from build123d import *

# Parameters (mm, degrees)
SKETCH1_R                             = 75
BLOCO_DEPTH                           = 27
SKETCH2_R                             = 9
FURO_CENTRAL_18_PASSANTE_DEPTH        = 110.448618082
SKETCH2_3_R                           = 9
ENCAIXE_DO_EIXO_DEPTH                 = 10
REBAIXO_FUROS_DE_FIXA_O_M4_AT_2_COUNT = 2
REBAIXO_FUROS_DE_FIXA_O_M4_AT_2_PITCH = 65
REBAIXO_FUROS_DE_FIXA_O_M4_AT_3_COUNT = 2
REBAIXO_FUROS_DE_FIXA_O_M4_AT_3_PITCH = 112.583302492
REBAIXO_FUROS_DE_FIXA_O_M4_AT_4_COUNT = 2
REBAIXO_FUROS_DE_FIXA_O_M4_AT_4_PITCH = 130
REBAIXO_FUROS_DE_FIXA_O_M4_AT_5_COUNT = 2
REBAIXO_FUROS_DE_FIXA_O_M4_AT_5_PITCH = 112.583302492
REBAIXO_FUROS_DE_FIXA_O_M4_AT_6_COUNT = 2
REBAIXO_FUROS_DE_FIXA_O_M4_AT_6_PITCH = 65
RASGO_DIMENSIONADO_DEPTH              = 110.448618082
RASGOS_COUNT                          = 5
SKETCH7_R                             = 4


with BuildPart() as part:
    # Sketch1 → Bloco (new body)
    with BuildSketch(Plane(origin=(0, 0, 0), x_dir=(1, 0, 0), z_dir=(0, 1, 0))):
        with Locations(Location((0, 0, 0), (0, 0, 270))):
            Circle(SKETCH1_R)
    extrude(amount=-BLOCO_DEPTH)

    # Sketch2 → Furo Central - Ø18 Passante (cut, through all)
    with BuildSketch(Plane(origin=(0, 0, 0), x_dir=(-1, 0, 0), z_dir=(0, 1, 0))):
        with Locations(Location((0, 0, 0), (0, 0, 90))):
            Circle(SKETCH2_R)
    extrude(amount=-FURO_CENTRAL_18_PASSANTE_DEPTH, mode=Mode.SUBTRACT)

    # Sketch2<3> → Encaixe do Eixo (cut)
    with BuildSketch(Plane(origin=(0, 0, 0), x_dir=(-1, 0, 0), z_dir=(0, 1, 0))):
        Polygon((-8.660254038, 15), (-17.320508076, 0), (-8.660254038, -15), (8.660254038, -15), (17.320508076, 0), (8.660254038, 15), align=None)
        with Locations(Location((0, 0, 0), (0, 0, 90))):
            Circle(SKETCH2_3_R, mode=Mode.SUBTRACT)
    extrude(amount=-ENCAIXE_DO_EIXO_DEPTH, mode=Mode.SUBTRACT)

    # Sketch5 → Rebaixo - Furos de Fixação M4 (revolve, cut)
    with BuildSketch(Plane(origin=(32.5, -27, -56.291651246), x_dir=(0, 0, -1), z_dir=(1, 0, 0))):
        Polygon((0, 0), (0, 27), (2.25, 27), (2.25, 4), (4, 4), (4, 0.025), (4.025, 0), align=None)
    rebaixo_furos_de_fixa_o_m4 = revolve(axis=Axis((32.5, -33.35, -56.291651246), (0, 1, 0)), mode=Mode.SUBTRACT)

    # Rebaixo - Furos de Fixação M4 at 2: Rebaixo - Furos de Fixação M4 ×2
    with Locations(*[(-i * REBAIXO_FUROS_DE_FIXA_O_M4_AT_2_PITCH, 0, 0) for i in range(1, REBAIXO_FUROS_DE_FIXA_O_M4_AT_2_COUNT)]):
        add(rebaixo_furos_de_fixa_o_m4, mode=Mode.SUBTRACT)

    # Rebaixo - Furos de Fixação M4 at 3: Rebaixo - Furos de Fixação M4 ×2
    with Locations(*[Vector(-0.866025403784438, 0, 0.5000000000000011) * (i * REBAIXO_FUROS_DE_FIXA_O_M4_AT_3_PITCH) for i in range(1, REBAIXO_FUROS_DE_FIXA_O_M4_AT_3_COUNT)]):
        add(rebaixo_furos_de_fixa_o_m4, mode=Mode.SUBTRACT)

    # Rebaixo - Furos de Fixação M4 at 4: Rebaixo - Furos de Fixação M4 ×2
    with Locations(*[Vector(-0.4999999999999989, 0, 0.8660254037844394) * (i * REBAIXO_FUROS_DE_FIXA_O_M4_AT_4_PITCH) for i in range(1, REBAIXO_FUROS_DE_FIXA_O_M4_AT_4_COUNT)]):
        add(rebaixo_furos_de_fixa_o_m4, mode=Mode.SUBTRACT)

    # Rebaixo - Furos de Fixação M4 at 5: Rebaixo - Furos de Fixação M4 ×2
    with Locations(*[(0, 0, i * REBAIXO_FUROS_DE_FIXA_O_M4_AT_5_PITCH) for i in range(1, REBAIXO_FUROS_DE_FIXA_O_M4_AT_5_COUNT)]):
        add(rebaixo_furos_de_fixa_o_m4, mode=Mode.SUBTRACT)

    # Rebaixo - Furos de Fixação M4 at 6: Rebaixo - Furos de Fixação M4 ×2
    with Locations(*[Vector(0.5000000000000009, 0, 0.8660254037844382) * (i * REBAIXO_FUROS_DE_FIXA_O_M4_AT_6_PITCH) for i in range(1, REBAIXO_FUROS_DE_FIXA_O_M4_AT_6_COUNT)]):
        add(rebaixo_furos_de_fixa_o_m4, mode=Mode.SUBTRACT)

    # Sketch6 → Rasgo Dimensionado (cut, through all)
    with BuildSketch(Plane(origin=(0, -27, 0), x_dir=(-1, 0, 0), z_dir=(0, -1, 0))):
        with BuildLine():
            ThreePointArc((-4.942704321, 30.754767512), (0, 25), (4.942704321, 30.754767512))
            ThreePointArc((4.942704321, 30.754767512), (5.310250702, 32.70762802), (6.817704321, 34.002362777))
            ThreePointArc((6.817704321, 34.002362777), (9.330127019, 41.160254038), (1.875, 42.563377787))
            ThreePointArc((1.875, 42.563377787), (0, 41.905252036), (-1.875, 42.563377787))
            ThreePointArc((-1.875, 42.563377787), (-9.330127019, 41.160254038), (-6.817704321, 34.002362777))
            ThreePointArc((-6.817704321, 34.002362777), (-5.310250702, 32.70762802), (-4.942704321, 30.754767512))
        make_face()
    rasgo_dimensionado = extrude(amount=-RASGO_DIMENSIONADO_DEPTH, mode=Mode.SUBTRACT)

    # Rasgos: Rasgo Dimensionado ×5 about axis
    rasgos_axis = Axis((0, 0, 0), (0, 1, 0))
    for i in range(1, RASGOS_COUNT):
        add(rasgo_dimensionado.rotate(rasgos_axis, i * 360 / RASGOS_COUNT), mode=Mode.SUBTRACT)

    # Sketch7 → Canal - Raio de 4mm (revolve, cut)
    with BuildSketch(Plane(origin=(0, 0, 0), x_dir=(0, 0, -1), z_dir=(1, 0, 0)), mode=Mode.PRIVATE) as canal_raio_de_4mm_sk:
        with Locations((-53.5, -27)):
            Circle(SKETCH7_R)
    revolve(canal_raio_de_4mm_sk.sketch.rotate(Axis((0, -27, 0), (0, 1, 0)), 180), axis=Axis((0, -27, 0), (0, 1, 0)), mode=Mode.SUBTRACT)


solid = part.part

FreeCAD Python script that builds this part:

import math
import FreeCAD as App
import Part
import Sketcher

V = App.Vector
Q = App.Units.Quantity


def add_polygon(sketch, points):
    """Adds a closed chain of lines whose ends are joined by coincident constraints."""
    first, n = sketch.GeometryCount, len(points)
    for a, b in zip(points, points[1:] + points[:1]):
        sketch.addGeometry(Part.LineSegment(App.Vector(*a, 0), App.Vector(*b, 0)), False)
    for i in range(n):
        sketch.addConstraint(Sketcher.Constraint("Coincident", first + i, 2, first + (i + 1) % n, 1))

doc = App.newDocument("Part")
params = doc.addObject("Spreadsheet::Sheet", "Params")
for row, (alias, value) in enumerate([
    ("sketch1_diameter", "150 mm"),
    ("pad1_length", "27 mm"),
    ("sketch2_diameter", "18 mm"),
    ("sketch3_diameter", "18 mm"),
    ("pocket2_length", "10 mm"),
    ("sketch4_width", "27 mm"),
    ("sketch4_width2", "23 mm"),
    ("sketch4_height", "1.75 mm"),
    ("groove_angle", "360 deg"),
    ("linearpattern_pitch", "65 mm"),
    ("linearpattern2_pitch", "112.583302 mm"),
    ("linearpattern3_pitch", "130 mm"),
    ("linearpattern4_pitch", "112.583302 mm"),
    ("linearpattern5_pitch", "65 mm"),
    ("sketch5_radius", "5 mm"),
    ("sketch5_radius2", "3 mm"),
    ("sketch6_diameter", "8 mm"),
    ("groove2_angle", "360 deg"),
], start=1):
    params.set(f"A{row}", alias)
    params.set(f"B{row}", "=" + value)
    params.setAlias(f"B{row}", alias)

body = doc.addObject("PartDesign::Body", "Body")

sketch1 = doc.addObject("Sketcher::SketchObject", "Sketch")
body.addObject(sketch1)
sketch1.AttachmentSupport = (doc.XZ_Plane, [""])
sketch1.MapMode = "FlatFace"
sketch1.addGeometry(Part.Circle(V(0, 0, 0), V(0, 0, 1), 75), False)
sketch1.addConstraint(Sketcher.Constraint("Coincident", 0, 3, -1, 1))
sketch1.addConstraint(Sketcher.Constraint("Diameter", 0, Q("150 mm")))
sketch1.setExpression("Constraints[1]", "Params.sketch1_diameter")
pad1 = doc.addObject("PartDesign::Pad", "Pad")
body.addObject(pad1)
pad1.Profile = sketch1
pad1.setExpression("Length", "Params.pad1_length")

sketch2 = doc.addObject("Sketcher::SketchObject", "Sketch001")
body.addObject(sketch2)
sketch2.AttachmentSupport = (doc.XZ_Plane, [""])
sketch2.MapMode = "FlatFace"
sketch2.addGeometry(Part.Circle(V(0, 0, 0), V(0, 0, 1), 9), False)
sketch2.addConstraint(Sketcher.Constraint("Coincident", 0, 3, -1, 1))
sketch2.addConstraint(Sketcher.Constraint("Diameter", 0, Q("18 mm")))
sketch2.setExpression("Constraints[1]", "Params.sketch2_diameter")
pocket1 = doc.addObject("PartDesign::Pocket", "Pocket")
body.addObject(pocket1)
pocket1.Profile = sketch2
pocket1.Type = "ThroughAll"
pocket1.Reversed = True

sketch3 = doc.addObject("Sketcher::SketchObject", "Sketch002")
body.addObject(sketch3)
sketch3.AttachmentSupport = (doc.XZ_Plane, [""])
sketch3.MapMode = "FlatFace"
add_polygon(sketch3, [(9, 15), (17, 0), (9, -15), (-9, -15), (-17, 0), (-9, 15)])
sketch3.addGeometry(Part.Circle(V(0, 0, 0), V(0, 0, 1), 9), False)
sketch3.addConstraint(Sketcher.Constraint("Horizontal", 2))
sketch3.addConstraint(Sketcher.Constraint("Horizontal", 5))
sketch3.addConstraint(Sketcher.Constraint("Coincident", 6, 3, -1, 1))
sketch3.addConstraint(Sketcher.Constraint("Symmetric", 0, 2, 3, 2, -1, 1))
sketch3.addConstraint(Sketcher.Constraint("Symmetric", 1, 2, 4, 2, -1, 1))
sketch3.addConstraint(Sketcher.Constraint("PointOnObject", 0, 2, -1))
sketch3.addConstraint(Sketcher.Constraint("Parallel", 0, 3))
sketch3.addConstraint(Sketcher.Constraint("Vertical", 2, 2, 4, 2))
sketch3.addConstraint(Sketcher.Constraint("Diameter", 6, Q("18 mm")))
sketch3.addConstraint(Sketcher.Constraint("Angle", 0, Q("-60 deg")))
sketch3.addConstraint(Sketcher.Constraint("DistanceY", 1, 2, -1, 1, Q("15 mm")))
sketch3.addConstraint(Sketcher.Constraint("DistanceX", 2, 2, 2, 1, Q("17.320508 mm")))
sketch3.setExpression("Constraints[14]", "Params.sketch3_diameter")
pocket2 = doc.addObject("PartDesign::Pocket", "Pocket001")
body.addObject(pocket2)
pocket2.Profile = sketch3
pocket2.setExpression("Length", "Params.pocket2_length")
pocket2.Reversed = True

sketch4 = doc.addObject("Sketcher::SketchObject", "Sketch003")
body.addObject(sketch4)
sketch4.AttachmentSupport = (doc.YZ_Plane, [""])
sketch4.MapMode = "FlatFace"
sketch4.AttachmentOffset = App.Placement(V(0, 0, 32.5), App.Rotation())
add_polygon(sketch4, [(0, -56.292), (-27, -56.292), (-27, -60.317), (-26.975, -60.292), (-23, -60.292), (-23, -58.542), (0, -58.542)])
sketch4.addGeometry(Part.LineSegment(V(-27, -56.292, 0), V(0, -56.292, 0)), True)
sketch4.addConstraint(Sketcher.Constraint("Horizontal", 0))
sketch4.addConstraint(Sketcher.Constraint("Vertical", 1))
sketch4.addConstraint(Sketcher.Constraint("Horizontal", 3))
sketch4.addConstraint(Sketcher.Constraint("Vertical", 4))
sketch4.addConstraint(Sketcher.Constraint("Horizontal", 5))
sketch4.addConstraint(Sketcher.Constraint("Vertical", 6))
sketch4.addConstraint(Sketcher.Constraint("Horizontal", 7))
sketch4.addConstraint(Sketcher.Constraint("Coincident", 7, 1, 0, 2))
sketch4.addConstraint(Sketcher.Constraint("PointOnObject", 5, 2, -2))
sketch4.addConstraint(Sketcher.Constraint("PointOnObject", 7, 2, -2))
sketch4.addConstraint(Sketcher.Constraint("DistanceX", 0, 2, 0, 1, Q("27 mm")))
sketch4.addConstraint(Sketcher.Constraint("DistanceX", 5, 1, 5, 2, Q("23 mm")))
sketch4.addConstraint(Sketcher.Constraint("Angle", 2, Q("45 deg")))
sketch4.addConstraint(Sketcher.Constraint("DistanceY", 2, 2, 0, 2, Q("4 mm")))
sketch4.addConstraint(Sketcher.Constraint("DistanceY", 4, 1, 4, 2, Q("1.75 mm")))
sketch4.addConstraint(Sketcher.Constraint("DistanceX", 3, 1, 3, 2, Q("3.975 mm")))
sketch4.addConstraint(Sketcher.Constraint("DistanceY", 0, 2, -1, 1, Q("56.291651 mm")))
sketch4.setExpression("Constraints[17]", "Params.sketch4_width")
sketch4.setExpression("Constraints[18]", "Params.sketch4_width2")
sketch4.setExpression("Constraints[21]", "Params.sketch4_height")
groove = doc.addObject("PartDesign::Groove", "Groove")
body.addObject(groove)
groove.Profile = sketch4
groove.ReferenceAxis = (sketch4, ["Axis0"])
groove.setExpression("Angle", "Params.groove_angle")
doc.recompute()

linearpattern = doc.addObject("PartDesign::LinearPattern", "LinearPattern")
body.addObject(linearpattern)
linearpattern.Originals = [groove]
linearpattern.Direction = (doc.X_Axis, [""])
linearpattern.Mode = "offset"
linearpattern.setExpression("Offset", "Params.linearpattern_pitch")
linearpattern.Occurrences = 2
linearpattern.Reversed = True
body.Tip = linearpattern
doc.recompute()

datumline = doc.addObject("PartDesign::Line", "DatumLine")
body.addObject(datumline)
datumline.Placement = App.Placement(V(0, 0, 0), App.Rotation(V(0, 0, 1), V(-0.866025404, 0, 0.5)))
linearpattern2 = doc.addObject("PartDesign::LinearPattern", "LinearPattern001")
body.addObject(linearpattern2)
linearpattern2.Originals = [groove]
linearpattern2.Direction = (datumline, [""])
linearpattern2.Mode = "offset"
linearpattern2.setExpression("Offset", "Params.linearpattern2_pitch")
linearpattern2.Occurrences = 2
body.Tip = linearpattern2
doc.recompute()

datumline2 = doc.addObject("PartDesign::Line", "DatumLine001")
body.addObject(datumline2)
datumline2.Placement = App.Placement(V(0, 0, 0), App.Rotation(V(0, 0, 1), V(-0.5, 0, 0.866025404)))
linearpattern3 = doc.addObject("PartDesign::LinearPattern", "LinearPattern002")
body.addObject(linearpattern3)
linearpattern3.Originals = [groove]
linearpattern3.Direction = (datumline2, [""])
linearpattern3.Mode = "offset"
linearpattern3.setExpression("Offset", "Params.linearpattern3_pitch")
linearpattern3.Occurrences = 2
body.Tip = linearpattern3
doc.recompute()

linearpattern4 = doc.addObject("PartDesign::LinearPattern", "LinearPattern003")
body.addObject(linearpattern4)
linearpattern4.Originals = [groove]
linearpattern4.Direction = (doc.Z_Axis, [""])
linearpattern4.Mode = "offset"
linearpattern4.setExpression("Offset", "Params.linearpattern4_pitch")
linearpattern4.Occurrences = 2
body.Tip = linearpattern4
doc.recompute()

datumline3 = doc.addObject("PartDesign::Line", "DatumLine002")
body.addObject(datumline3)
datumline3.Placement = App.Placement(V(0, 0, 0), App.Rotation(V(0, 0, 1), V(0.5, 0, 0.866025404)))
linearpattern5 = doc.addObject("PartDesign::LinearPattern", "LinearPattern004")
body.addObject(linearpattern5)
linearpattern5.Originals = [groove]
linearpattern5.Direction = (datumline3, [""])
linearpattern5.Mode = "offset"
linearpattern5.setExpression("Offset", "Params.linearpattern5_pitch")
linearpattern5.Occurrences = 2
body.Tip = linearpattern5

sketch5 = doc.addObject("Sketcher::SketchObject", "Sketch004")
body.addObject(sketch5)
sketch5.AttachmentSupport = (doc.XZ_Plane, [""])
sketch5.MapMode = "FlatFace"
sketch5.AttachmentOffset = App.Placement(V(0, 0, 27), App.Rotation())
sketch5.addGeometry(Part.ArcOfCircle(Part.Circle(V(0, -30, 0), V(0, 0, 1), 5), math.radians(-9), math.radians(189)), False)
sketch5.addGeometry(Part.ArcOfCircle(Part.Circle(V(-7.9, -31.2, 0), V(0, 0, 1), 3), math.radians(-69), math.radians(9)), False)
sketch5.addGeometry(Part.ArcOfCircle(Part.Circle(V(-5, -38.7, 0), V(0, 0, 1), 5), math.radians(111), math.radians(309)), False)
sketch5.addGeometry(Part.ArcOfCircle(Part.Circle(V(0, -44.9, 0), V(0, 0, 1), 3), math.radians(51), math.radians(129)), False)
sketch5.addGeometry(Part.ArcOfCircle(Part.Circle(V(5, -38.7, 0), V(0, 0, 1), 5), math.radians(-129), math.radians(69)), False)
sketch5.addGeometry(Part.ArcOfCircle(Part.Circle(V(7.9, -31.2, 0), V(0, 0, 1), 3), math.radians(171), math.radians(249)), False)
sketch5.addConstraint(Sketcher.Constraint("Tangent", 0, 2, 1, 2))
sketch5.addConstraint(Sketcher.Constraint("Tangent", 1, 1, 2, 1))
sketch5.addConstraint(Sketcher.Constraint("Tangent", 2, 2, 3, 2))
sketch5.addConstraint(Sketcher.Constraint("Tangent", 3, 1, 4, 1))
sketch5.addConstraint(Sketcher.Constraint("Tangent", 4, 2, 5, 2))
sketch5.addConstraint(Sketcher.Constraint("Tangent", 5, 1, 0, 1))
sketch5.addConstraint(Sketcher.Constraint("Equal", 0, 2))
sketch5.addConstraint(Sketcher.Constraint("Equal", 1, 3))
sketch5.addConstraint(Sketcher.Constraint("Equal", 2, 4))
sketch5.addConstraint(Sketcher.Constraint("Equal", 3, 5))
sketch5.addConstraint(Sketcher.Constraint("Symmetric", 2, 3, 4, 3, -2))
sketch5.addConstraint(Sketcher.Constraint("PointOnObject", 0, 3, -2))
sketch5.addConstraint(Sketcher.Constraint("Radius", 0, Q("5 mm")))
sketch5.addConstraint(Sketcher.Constraint("Radius", 1, Q("3 mm")))
sketch5.addConstraint(Sketcher.Constraint("DistanceY", 0, 3, -1, 1, Q("30 mm")))
sketch5.addConstraint(Sketcher.Constraint("DistanceX", 2, 3, -1, 1, Q("5 mm")))
sketch5.addConstraint(Sketcher.Constraint("DistanceY", 1, 3, -1, 1, Q("31.207628 mm")))
sketch5.setExpression("Constraints[12]", "Params.sketch5_radius")
sketch5.setExpression("Constraints[13]", "Params.sketch5_radius2")
pocket3 = doc.addObject("PartDesign::Pocket", "Pocket002")
body.addObject(pocket3)
pocket3.Profile = sketch5
pocket3.Type = "ThroughAll"
doc.recompute()

polarpattern = doc.addObject("PartDesign::PolarPattern", "PolarPattern")
body.addObject(polarpattern)
polarpattern.Originals = [pocket3]
polarpattern.Axis = (doc.Y_Axis, [""])
polarpattern.Angle = 360
polarpattern.Occurrences = 5
body.Tip = polarpattern

sketch6 = doc.addObject("Sketcher::SketchObject", "Sketch005")
body.addObject(sketch6)
sketch6.AttachmentSupport = (doc.YZ_Plane, [""])
sketch6.MapMode = "FlatFace"
sketch6.addGeometry(Part.Circle(V(-27, 53.5, 0), V(0, 0, 1), 4), False)
sketch6.addConstraint(Sketcher.Constraint("Diameter", 0, Q("8 mm")))
sketch6.addConstraint(Sketcher.Constraint("DistanceX", 0, 3, -1, 1, Q("27 mm")))
sketch6.addConstraint(Sketcher.Constraint("DistanceY", -1, 1, 0, 3, Q("53.5 mm")))
sketch6.setExpression("Constraints[0]", "Params.sketch6_diameter")
groove2 = doc.addObject("PartDesign::Groove", "Groove001")
body.addObject(groove2)
groove2.Profile = sketch6
groove2.ReferenceAxis = (sketch6, ["H_Axis"])
groove2.setExpression("Angle", "Params.groove2_angle")

doc.recompute()
